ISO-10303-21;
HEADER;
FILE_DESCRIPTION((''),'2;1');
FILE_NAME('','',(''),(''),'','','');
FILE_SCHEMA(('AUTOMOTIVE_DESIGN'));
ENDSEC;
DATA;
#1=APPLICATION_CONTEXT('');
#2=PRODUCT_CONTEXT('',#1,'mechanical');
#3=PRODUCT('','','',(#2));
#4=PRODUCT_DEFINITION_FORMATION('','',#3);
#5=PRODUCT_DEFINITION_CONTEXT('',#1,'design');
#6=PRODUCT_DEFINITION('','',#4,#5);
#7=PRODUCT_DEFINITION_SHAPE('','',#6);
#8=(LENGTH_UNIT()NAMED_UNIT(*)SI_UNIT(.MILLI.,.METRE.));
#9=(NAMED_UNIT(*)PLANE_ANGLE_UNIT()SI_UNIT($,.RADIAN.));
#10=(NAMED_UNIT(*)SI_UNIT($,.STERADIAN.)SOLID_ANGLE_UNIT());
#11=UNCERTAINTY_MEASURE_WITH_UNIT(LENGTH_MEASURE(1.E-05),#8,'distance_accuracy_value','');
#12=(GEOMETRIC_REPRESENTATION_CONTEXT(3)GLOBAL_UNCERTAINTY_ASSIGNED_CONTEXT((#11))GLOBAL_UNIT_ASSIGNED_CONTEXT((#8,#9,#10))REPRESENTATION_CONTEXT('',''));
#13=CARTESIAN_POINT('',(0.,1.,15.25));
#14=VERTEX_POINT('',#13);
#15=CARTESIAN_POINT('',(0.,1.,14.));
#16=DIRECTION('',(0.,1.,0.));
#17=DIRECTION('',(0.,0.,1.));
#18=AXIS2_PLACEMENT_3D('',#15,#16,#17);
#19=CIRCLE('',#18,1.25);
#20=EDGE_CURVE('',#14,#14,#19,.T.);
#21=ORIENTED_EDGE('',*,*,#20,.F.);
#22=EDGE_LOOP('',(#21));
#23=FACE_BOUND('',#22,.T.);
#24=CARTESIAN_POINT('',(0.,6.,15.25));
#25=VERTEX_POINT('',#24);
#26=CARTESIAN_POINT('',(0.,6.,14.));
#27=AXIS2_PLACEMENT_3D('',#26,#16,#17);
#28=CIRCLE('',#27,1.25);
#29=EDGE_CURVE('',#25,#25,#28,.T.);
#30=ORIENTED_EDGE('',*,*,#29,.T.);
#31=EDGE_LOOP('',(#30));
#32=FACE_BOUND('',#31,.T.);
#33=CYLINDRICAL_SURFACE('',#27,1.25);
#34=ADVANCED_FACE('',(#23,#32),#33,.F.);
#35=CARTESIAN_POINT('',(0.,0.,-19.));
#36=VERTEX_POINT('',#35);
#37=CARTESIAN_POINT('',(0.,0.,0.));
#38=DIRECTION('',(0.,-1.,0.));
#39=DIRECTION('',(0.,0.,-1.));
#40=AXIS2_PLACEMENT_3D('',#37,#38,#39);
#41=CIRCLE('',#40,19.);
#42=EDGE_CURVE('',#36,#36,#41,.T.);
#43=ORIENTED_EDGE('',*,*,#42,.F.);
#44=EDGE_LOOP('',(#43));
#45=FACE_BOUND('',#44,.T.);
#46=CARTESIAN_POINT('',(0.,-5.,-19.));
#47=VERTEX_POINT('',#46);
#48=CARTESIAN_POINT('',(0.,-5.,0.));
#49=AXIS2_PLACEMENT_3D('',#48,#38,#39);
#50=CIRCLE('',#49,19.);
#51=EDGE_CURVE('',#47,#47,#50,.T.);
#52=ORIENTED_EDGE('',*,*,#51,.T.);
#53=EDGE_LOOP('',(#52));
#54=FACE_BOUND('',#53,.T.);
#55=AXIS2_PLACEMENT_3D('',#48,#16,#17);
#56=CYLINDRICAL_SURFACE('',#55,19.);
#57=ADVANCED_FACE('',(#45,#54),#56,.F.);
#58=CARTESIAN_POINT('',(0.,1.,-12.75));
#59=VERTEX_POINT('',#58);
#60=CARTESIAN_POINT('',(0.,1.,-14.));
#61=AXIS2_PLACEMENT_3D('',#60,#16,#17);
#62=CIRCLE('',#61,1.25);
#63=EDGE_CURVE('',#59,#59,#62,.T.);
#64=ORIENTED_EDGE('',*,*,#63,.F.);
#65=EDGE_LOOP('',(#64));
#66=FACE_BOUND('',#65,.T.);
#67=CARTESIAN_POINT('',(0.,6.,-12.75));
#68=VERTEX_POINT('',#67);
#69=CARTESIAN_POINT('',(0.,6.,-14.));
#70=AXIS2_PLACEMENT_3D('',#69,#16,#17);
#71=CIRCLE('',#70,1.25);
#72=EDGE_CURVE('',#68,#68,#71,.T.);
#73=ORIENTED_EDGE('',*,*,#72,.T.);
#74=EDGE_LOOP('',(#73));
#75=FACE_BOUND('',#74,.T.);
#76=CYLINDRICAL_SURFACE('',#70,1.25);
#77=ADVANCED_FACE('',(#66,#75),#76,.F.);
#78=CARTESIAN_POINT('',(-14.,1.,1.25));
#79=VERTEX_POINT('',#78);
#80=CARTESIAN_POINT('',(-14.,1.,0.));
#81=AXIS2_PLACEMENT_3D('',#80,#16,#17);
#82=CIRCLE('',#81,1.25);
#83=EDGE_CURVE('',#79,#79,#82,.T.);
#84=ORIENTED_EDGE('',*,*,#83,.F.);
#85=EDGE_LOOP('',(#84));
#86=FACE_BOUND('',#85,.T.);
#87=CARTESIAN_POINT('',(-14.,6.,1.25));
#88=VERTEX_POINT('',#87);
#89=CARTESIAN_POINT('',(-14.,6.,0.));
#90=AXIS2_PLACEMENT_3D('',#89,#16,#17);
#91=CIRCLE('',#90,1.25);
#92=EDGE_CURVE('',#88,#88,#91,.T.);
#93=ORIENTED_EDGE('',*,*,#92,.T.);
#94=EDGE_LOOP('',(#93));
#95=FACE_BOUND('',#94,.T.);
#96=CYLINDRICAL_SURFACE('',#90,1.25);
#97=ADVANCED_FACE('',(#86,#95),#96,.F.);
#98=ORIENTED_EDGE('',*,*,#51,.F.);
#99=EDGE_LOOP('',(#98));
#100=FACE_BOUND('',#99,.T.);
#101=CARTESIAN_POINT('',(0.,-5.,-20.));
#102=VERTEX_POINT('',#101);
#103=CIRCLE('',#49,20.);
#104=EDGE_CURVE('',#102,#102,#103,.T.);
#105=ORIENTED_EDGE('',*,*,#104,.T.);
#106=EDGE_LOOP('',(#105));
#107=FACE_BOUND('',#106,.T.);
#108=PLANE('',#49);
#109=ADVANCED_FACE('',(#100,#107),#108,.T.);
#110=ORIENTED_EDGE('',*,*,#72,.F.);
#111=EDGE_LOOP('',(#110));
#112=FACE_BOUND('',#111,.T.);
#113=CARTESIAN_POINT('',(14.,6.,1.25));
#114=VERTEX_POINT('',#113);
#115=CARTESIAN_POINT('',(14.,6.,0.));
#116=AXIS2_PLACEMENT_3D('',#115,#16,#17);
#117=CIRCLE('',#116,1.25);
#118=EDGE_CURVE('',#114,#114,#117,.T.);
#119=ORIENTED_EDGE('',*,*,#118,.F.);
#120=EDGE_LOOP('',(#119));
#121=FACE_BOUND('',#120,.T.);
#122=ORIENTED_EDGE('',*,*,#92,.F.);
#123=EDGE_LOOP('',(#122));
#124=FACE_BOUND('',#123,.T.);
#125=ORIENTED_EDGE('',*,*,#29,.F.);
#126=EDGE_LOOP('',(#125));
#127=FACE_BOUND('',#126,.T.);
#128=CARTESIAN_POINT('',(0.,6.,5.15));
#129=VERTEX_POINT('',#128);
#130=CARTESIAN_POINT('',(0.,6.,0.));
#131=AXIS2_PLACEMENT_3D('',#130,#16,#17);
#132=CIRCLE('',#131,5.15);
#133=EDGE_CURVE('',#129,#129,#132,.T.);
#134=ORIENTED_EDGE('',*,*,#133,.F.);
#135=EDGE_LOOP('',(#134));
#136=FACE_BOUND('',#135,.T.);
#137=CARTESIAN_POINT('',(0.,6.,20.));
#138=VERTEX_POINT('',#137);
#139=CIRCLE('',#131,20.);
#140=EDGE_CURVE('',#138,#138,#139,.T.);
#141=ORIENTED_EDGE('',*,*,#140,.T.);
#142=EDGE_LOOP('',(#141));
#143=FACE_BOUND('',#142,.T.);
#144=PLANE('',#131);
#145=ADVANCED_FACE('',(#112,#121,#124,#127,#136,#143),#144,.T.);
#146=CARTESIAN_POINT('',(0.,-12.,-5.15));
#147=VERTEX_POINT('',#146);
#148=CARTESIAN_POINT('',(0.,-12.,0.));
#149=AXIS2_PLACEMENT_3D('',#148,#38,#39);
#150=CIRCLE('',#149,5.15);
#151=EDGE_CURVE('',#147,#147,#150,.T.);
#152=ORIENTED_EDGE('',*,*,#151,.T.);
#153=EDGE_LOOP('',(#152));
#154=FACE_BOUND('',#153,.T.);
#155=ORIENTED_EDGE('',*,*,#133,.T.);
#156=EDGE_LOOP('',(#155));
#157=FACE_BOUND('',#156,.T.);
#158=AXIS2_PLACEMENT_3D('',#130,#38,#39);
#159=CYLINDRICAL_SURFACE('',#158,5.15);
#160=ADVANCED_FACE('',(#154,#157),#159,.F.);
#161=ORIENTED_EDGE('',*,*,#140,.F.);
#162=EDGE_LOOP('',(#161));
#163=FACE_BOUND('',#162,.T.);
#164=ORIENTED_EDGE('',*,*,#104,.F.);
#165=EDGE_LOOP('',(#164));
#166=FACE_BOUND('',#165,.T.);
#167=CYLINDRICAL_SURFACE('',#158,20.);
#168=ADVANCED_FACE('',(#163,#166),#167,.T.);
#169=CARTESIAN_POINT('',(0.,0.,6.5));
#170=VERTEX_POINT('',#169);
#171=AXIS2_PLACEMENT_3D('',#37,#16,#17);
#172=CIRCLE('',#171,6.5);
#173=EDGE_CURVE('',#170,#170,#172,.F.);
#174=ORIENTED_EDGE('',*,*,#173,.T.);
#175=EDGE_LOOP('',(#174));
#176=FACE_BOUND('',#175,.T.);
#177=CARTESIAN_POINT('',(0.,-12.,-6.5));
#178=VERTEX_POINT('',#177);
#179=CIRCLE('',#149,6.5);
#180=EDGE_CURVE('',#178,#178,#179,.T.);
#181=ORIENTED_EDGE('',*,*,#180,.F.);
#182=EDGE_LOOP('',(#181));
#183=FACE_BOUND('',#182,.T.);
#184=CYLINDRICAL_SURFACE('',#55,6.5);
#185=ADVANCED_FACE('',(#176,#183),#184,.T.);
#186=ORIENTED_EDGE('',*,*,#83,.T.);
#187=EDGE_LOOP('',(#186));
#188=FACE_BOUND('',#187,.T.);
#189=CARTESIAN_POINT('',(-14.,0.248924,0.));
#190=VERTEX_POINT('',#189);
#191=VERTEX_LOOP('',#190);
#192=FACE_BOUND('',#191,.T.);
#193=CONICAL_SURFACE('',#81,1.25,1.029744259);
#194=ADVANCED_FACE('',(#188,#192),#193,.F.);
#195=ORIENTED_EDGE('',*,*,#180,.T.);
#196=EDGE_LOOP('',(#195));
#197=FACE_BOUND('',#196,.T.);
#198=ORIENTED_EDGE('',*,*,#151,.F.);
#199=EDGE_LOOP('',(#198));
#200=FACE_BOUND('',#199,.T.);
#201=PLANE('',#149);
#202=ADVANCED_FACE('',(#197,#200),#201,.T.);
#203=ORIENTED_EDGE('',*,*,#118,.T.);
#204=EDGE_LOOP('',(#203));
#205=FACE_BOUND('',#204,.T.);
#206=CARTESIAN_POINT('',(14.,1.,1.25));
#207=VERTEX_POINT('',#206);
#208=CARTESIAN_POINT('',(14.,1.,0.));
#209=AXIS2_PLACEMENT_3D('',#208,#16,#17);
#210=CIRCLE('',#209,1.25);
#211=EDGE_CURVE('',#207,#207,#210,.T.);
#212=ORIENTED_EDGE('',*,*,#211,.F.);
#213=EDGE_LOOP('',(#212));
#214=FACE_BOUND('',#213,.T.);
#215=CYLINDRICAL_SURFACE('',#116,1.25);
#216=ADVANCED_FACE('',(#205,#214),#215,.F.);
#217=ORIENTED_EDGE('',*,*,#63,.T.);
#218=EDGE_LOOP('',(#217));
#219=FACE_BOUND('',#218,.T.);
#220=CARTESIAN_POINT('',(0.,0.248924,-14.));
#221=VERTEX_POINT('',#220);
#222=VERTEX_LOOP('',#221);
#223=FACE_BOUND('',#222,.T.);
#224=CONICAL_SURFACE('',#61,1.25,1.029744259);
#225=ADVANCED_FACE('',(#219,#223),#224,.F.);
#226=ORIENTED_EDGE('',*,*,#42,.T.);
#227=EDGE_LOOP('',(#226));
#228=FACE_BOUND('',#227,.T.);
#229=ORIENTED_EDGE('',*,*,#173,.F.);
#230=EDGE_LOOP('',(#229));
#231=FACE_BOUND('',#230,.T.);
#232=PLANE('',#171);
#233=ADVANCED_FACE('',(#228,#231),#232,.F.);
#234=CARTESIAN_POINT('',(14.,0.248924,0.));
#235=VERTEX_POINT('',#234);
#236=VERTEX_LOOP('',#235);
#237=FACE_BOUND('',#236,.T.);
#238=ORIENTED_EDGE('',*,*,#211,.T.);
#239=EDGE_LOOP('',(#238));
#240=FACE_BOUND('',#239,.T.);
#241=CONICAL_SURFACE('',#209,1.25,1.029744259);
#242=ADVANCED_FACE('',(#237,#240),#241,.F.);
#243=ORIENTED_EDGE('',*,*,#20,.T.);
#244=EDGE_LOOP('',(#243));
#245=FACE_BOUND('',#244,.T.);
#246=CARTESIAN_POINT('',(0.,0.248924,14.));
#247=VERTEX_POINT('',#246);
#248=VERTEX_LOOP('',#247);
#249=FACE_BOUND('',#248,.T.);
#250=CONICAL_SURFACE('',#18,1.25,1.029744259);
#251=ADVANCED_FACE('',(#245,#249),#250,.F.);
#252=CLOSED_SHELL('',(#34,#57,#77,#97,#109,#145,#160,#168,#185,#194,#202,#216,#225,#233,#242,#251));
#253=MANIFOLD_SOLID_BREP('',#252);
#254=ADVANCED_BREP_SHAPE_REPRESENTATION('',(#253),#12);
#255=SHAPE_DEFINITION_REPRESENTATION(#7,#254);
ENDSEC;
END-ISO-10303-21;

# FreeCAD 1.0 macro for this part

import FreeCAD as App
import Part
import Sketcher
from FreeCAD import Vector
Q = App.Units.Quantity

doc = App.newDocument("Part")
body = doc.addObject("PartDesign::Body", "Body")

sketch1 = body.newObject("Sketcher::SketchObject", "Sketch")
sketch1.AttachmentSupport = (doc.getObject("XZ_Plane"), [""])
sketch1.MapMode = "FlatFace"
sketch1.addGeometry([
    Part.Circle(Vector(0, 0, 0), Vector(0, 0, 1), 20),
    Part.Circle(Vector(0, 0, 0), Vector(0, 0, 1), 5),
], False)
sketch1.addConstraint([
    Sketcher.Constraint("Coincident", 0, 3, -1, 1),
    Sketcher.Constraint("Coincident", 1, 3, -1, 1),
    Sketcher.Constraint("Diameter", 0, Q("40 mm")),
    Sketcher.Constraint("Diameter", 1, Q("10.3 mm")),
])
pad1 = body.newObject("PartDesign::Pad", "Pad")
pad1.Profile = sketch1
pad1.Length = 6
pad1.Reversed = True

sketch2 = body.newObject("Sketcher::SketchObject", "Sketch001")
sketch2.AttachmentSupport = (doc.getObject("XZ_Plane"), [""])
sketch2.MapMode = "FlatFace"
sketch2.AttachmentOffset = App.Placement(Vector(0, 0, 5), App.Rotation())
sketch2.addGeometry([
    Part.Circle(Vector(0, 0, 0), Vector(0, 0, 1), 20),
    Part.Circle(Vector(0, 0, 0), Vector(0, 0, 1), 19),
    Part.Circle(Vector(0, 0, 0), Vector(0, 0, 1), 6),
    Part.Circle(Vector(0, 0, 0), Vector(0, 0, 1), 5),
], False)
sketch2.addConstraint([
    Sketcher.Constraint("Coincident", 0, 3, -1, 1),
    Sketcher.Constraint("Coincident", 1, 3, -1, 1),
    Sketcher.Constraint("Coincident", 2, 3, -1, 1),
    Sketcher.Constraint("Coincident", 3, 3, -1, 1),
    Sketcher.Constraint("Diameter", 0, Q("40 mm")),
    Sketcher.Constraint("Diameter", 1, Q("38 mm")),
    Sketcher.Constraint("Diameter", 2, Q("13 mm")),
    Sketcher.Constraint("Diameter", 3, Q("10.3 mm")),
])
pad2 = body.newObject("PartDesign::Pad", "Pad001")
pad2.Profile = sketch2
pad2.Length = 5
pad2.Reversed = True

sketch3 = body.newObject("Sketcher::SketchObject", "Sketch002")
sketch3.AttachmentSupport = (doc.getObject("XZ_Plane"), [""])
sketch3.MapMode = "FlatFace"
sketch3.AttachmentOffset = App.Placement(Vector(0, 0, 12), App.Rotation())
sketch3.addGeometry([
    Part.Circle(Vector(0, 0, 0), Vector(0, 0, 1), 6),
    Part.Circle(Vector(0, 0, 0), Vector(0, 0, 1), 5),
], False)
sketch3.addConstraint([
    Sketcher.Constraint("Coincident", 0, 3, -1, 1),
    Sketcher.Constraint("Coincident", 1, 3, -1, 1),
    Sketcher.Constraint("Diameter", 0, Q("13 mm")),
    Sketcher.Constraint("Diameter", 1, Q("10.3 mm")),
])
pad3 = body.newObject("PartDesign::Pad", "Pad002")
pad3.Profile = sketch3
pad3.Length = 7
pad3.Reversed = True

sketch4 = body.newObject("Sketcher::SketchObject", "Sketch003")
sketch4.AttachmentSupport = (doc.getObject("XZ_Plane"), [""])
sketch4.MapMode = "FlatFace"
sketch4.AttachmentOffset = App.Placement(Vector(0, 0, -6), App.Rotation())
sketch4.addGeometry([
    Part.Circle(Vector(0, -14, 0), Vector(0, 0, 1), 1.2),
    Part.Circle(Vector(0, 14, 0), Vector(0, 0, 1), 1.2),
    Part.Circle(Vector(14, 0, 0), Vector(0, 0, 1), 1.2),
    Part.Circle(Vector(-14, 0, 0), Vector(0, 0, 1), 1.2),
], False)
sketch4.addConstraint([
    Sketcher.Constraint("Equal", 0, 1),
    Sketcher.Constraint("Equal", 1, 2),
    Sketcher.Constraint("Equal", 2, 3),
    Sketcher.Constraint("Symmetric", 0, 3, 1, 3, -1, 1),
    Sketcher.Constraint("Symmetric", 2, 3, 3, 3, -1, 1),
    Sketcher.Constraint("PointOnObject", 0, 3, -2),
    Sketcher.Constraint("PointOnObject", 2, 3, -1),
    Sketcher.Constraint("Diameter", 0, Q("2.5 mm")),
    Sketcher.Constraint("DistanceY", 0, 3, -1, 1, Q("14 mm")),
    Sketcher.Constraint("DistanceX", -1, 1, 2, 3, Q("14 mm")),
])
doc.recompute()
hole = body.newObject("PartDesign::Hole", "Hole")
hole.Profile = sketch4
hole.ThreadType = "None"
hole.Diameter = 2.5
hole.DepthType = "Dimension"
hole.Depth = 5
hole.DrillPoint = "Angled"
hole.DrillPointAngle = 118
hole.Reversed = True

doc.recompute()
